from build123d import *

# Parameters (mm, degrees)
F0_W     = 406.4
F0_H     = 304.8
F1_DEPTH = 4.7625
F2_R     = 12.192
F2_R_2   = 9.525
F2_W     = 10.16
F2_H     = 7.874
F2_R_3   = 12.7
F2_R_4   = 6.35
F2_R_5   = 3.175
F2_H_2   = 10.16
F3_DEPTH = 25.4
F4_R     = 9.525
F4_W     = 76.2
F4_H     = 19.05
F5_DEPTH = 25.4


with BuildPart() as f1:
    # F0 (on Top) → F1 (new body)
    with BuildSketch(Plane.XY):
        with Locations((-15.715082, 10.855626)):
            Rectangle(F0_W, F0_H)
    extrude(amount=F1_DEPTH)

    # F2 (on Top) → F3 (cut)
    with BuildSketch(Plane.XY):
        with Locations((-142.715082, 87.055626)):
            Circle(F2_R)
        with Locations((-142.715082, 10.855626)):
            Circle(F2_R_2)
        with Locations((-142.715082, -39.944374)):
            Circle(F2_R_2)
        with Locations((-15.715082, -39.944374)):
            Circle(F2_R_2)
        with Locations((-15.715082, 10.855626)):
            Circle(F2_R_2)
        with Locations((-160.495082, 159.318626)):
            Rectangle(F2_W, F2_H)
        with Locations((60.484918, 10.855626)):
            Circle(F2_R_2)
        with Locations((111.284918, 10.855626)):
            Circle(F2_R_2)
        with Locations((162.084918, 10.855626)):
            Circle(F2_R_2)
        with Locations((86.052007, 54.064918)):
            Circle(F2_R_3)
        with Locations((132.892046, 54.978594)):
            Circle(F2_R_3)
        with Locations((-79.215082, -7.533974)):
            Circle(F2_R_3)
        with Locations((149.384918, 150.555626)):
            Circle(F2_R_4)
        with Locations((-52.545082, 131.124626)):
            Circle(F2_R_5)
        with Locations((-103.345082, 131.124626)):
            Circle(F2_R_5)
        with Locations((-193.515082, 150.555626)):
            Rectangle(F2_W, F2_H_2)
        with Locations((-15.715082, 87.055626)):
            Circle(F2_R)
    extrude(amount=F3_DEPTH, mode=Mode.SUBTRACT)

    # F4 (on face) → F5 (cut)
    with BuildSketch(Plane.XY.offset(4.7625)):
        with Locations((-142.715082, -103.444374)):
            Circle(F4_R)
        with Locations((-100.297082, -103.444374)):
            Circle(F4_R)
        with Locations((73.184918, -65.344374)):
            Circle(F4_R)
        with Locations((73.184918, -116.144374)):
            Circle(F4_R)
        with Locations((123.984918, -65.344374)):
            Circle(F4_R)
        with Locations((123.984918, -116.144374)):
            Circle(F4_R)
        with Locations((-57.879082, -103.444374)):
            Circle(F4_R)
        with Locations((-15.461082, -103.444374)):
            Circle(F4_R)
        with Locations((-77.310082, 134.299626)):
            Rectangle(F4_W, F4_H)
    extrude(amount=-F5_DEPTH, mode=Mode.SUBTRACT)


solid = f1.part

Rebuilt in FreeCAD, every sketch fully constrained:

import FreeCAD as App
import Part
import Sketcher

V = App.Vector
Q = App.Units.Quantity


def add_polygon(sketch, points):
    """Adds a closed chain of lines whose ends are joined by coincident constraints."""
    first, n = sketch.GeometryCount, len(points)
    for a, b in zip(points, points[1:] + points[:1]):
        sketch.addGeometry(Part.LineSegment(App.Vector(*a, 0), App.Vector(*b, 0)), False)
    for i in range(n):
        sketch.addConstraint(Sketcher.Constraint("Coincident", first + i, 2, first + (i + 1) % n, 1))

doc = App.newDocument("Part")
body = doc.addObject("PartDesign::Body", "Body")

# Sketch on XY plane
sketch1 = body.newObject("Sketcher::SketchObject", "Sketch")
sketch1.AttachmentSupport = (doc.getObject("XY_Plane"), [""])
sketch1.MapMode = "FlatFace"
add_polygon(sketch1, [(-219, 163), (-219, -142), (187, -142), (187, 163)])  # lines 0-3
sketch1.addConstraint([
    Sketcher.Constraint("Vertical", 0),
    Sketcher.Constraint("Horizontal", 1),
    Sketcher.Constraint("Vertical", 2),
    Sketcher.Constraint("Horizontal", 3),
    Sketcher.Constraint("DistanceX", 1, 1, 1, 2, Q("16 in")),
    Sketcher.Constraint("DistanceY", 0, 2, 0, 1, Q("12 in")),
    Sketcher.Constraint("DistanceX", -1, 1, 1, 2, 187.484918),
    Sketcher.Constraint("DistanceY", 0, 2, -1, 1, 141.544374),
])
pad1 = body.newObject("PartDesign::Pad", "Pad")
pad1.Profile = sketch1
pad1.Length = Q("0.1875 in")

# Sketch on XY plane
sketch2 = body.newObject("Sketcher::SketchObject", "Sketch001")
sketch2.AttachmentSupport = (doc.getObject("XY_Plane"), [""])
sketch2.MapMode = "FlatFace"
sketch2.addGeometry(Part.Circle(V(-142.7, 87.1, 0), V(0, 0, 1), 12.2), False)  # 0
sketch2.addGeometry(Part.Circle(V(-142.7, 10.9, 0), V(0, 0, 1), 9.5), False)  # 1
sketch2.addGeometry(Part.Circle(V(-142.7, -39.9, 0), V(0, 0, 1), 9.5), False)  # 2
sketch2.addGeometry(Part.Circle(V(-15.7, -39.9, 0), V(0, 0, 1), 9.5), False)  # 3
sketch2.addGeometry(Part.Circle(V(-15.7, 10.9, 0), V(0, 0, 1), 9.5), False)  # 4
add_polygon(sketch2, [(-165.6, 163.3), (-165.6, 155.4), (-155.4, 155.4), (-155.4, 163.3)])  # lines 5-8
sketch2.addGeometry(Part.Circle(V(60.5, 10.9, 0), V(0, 0, 1), 9.5), False)  # 9
sketch2.addGeometry(Part.Circle(V(111.3, 10.9, 0), V(0, 0, 1), 9.5), False)  # 10
sketch2.addGeometry(Part.Circle(V(162.1, 10.9, 0), V(0, 0, 1), 9.5), False)  # 11
sketch2.addGeometry(Part.Circle(V(86.1, 54.1, 0), V(0, 0, 1), 12.7), False)  # 12
sketch2.addGeometry(Part.Circle(V(132.9, 55, 0), V(0, 0, 1), 12.7), False)  # 13
sketch2.addGeometry(Part.Circle(V(-79.2, -7.5, 0), V(0, 0, 1), 12.7), False)  # 14
sketch2.addGeometry(Part.Circle(V(149.4, 150.6, 0), V(0, 0, 1), 6.3), False)  # 15
sketch2.addGeometry(Part.Circle(V(-52.5, 131.1, 0), V(0, 0, 1), 3.2), False)  # 16
sketch2.addGeometry(Part.Circle(V(-103.3, 131.1, 0), V(0, 0, 1), 3.2), False)  # 17
add_polygon(sketch2, [(-198.6, 155.6), (-198.6, 145.5), (-188.4, 145.5), (-188.4, 155.6)])  # lines 18-21
sketch2.addGeometry(Part.Circle(V(-15.7, 87.1, 0), V(0, 0, 1), 12.2), False)  # 22
sketch2.addConstraint([
    Sketcher.Constraint("Vertical", 5),
    Sketcher.Constraint("Horizontal", 6),
    Sketcher.Constraint("Vertical", 7),
    Sketcher.Constraint("Horizontal", 8),
    Sketcher.Constraint("Vertical", 18),
    Sketcher.Constraint("Horizontal", 19),
    Sketcher.Constraint("Vertical", 20),
    Sketcher.Constraint("Horizontal", 21),
    Sketcher.Constraint("Equal", 1, 2),
    Sketcher.Constraint("Equal", 2, 3),
    Sketcher.Constraint("Equal", 3, 4),
    Sketcher.Constraint("Equal", 4, 9),
    Sketcher.Constraint("Equal", 9, 10),
    Sketcher.Constraint("Equal", 10, 11),
    Sketcher.Constraint("Equal", 12, 13),
    Sketcher.Constraint("Equal", 13, 14),
    Sketcher.Constraint("Equal", 16, 17),
    Sketcher.Constraint("Equal", 0, 22),
    Sketcher.Constraint("Horizontal", 2, 3, 3, 3),
    Sketcher.Constraint("Horizontal", 1, 3, 4, 3),
    Sketcher.Constraint("Horizontal", 4, 3, 9, 3),
    Sketcher.Constraint("Horizontal", 9, 3, 10, 3),
    Sketcher.Constraint("Horizontal", 10, 3, 11, 3),
    Sketcher.Constraint("Horizontal", 16, 3, 17, 3),
    Sketcher.Constraint("Horizontal", 0, 3, 22, 3),
    Sketcher.Constraint("Vertical", 0, 3, 1, 3),
    Sketcher.Constraint("Vertical", 1, 3, 2, 3),
    Sketcher.Constraint("Vertical", 3, 3, 4, 3),
    Sketcher.Constraint("Vertical", 4, 3, 22, 3),
    Sketcher.Constraint("Equal", 8, 19),
    Sketcher.Constraint("Equal", 21, 18),
    Sketcher.Constraint("Diameter", 12, Q("1 in")),
    Sketcher.Constraint("Diameter", 15, Q("0.5 in")),
    Sketcher.Constraint("Diameter", 0, Q("0.96 in")),
    Sketcher.Constraint("Diameter", 1, Q("0.75 in")),
    Sketcher.Constraint("Diameter", 16, Q("0.25 in")),
    Sketcher.Constraint("DistanceX", 6, 1, 6, 2, Q("0.4 in")),
    Sketcher.Constraint("DistanceY", 1, 3, 0, 3, Q("3 in")),
    Sketcher.Constraint("DistanceY", 2, 3, 1, 3, Q("2 in")),
    Sketcher.Constraint("DistanceX", 2, 3, 3, 3, Q("5 in")),
    Sketcher.Constraint("DistanceX", 4, 3, 9, 3, Q("3 in")),
    Sketcher.Constraint("DistanceX", 9, 3, 10, 3, Q("2 in")),
    Sketcher.Constraint("DistanceX", 10, 3, 11, 3, Q("2 in")),
    Sketcher.Constraint("DistanceX", 17, 3, 16, 3, Q("2 in")),
    Sketcher.Constraint("DistanceY", 0, 3, 7, 2, Q("3 in")),
    Sketcher.Constraint("DistanceY", 5, 2, 5, 1, Q("0.31 in")),
    Sketcher.Constraint("DistanceX", 1, 3, 14, 3, Q("2.5 in")),
    Sketcher.Constraint("DistanceX", 15, 3, 11, 3, Q("0.5 in")),
    Sketcher.Constraint("DistanceY", 11, 3, 15, 3, Q("5.5 in")),
    Sketcher.Constraint("DistanceX", 5, 2, 0, 3, Q("0.9 in")),
    Sketcher.Constraint("DistanceX", 18, 2, 5, 2, Q("1.3 in")),
    Sketcher.Constraint("DistanceY", 18, 2, 8, 2, Q("0.7 in")),
    Sketcher.Constraint("DistanceX", 0, 3, 16, 3, Q("3.55 in")),
    Sketcher.Constraint("DistanceY", 14, 3, 1, 3, Q("0.724 in")),
    Sketcher.Constraint("DistanceY", 0, 3, 16, 3, Q("1.735 in")),
    Sketcher.Constraint("DistanceX", 0, 3, -1, 1, 142.715082),
    Sketcher.Constraint("DistanceX", 12, 3, 10, 3, 25.232911),
    Sketcher.Constraint("DistanceY", 10, 3, 12, 3, 43.209292),
    Sketcher.Constraint("DistanceX", 12, 3, 13, 3, 46.840039),
    Sketcher.Constraint("DistanceY", 13, 3, 15, 3, 95.577032),
    Sketcher.Constraint("DistanceY", -1, 1, 0, 3, 87.055626),
])
pocket1 = body.newObject("PartDesign::Pocket", "Pocket")
pocket1.Profile = sketch2
pocket1.Length = Q("1 in")
pocket1.Reversed = True

# Sketch on XY plane
sketch3 = body.newObject("Sketcher::SketchObject", "Sketch002")
sketch3.AttachmentSupport = (doc.getObject("XY_Plane"), [""])
sketch3.MapMode = "FlatFace"
sketch3.AttachmentOffset = App.Placement(V(0, 0, 0.1875 * 25.4), App.Rotation())
sketch3.addGeometry(Part.Circle(V(-143, -103, 0), V(0, 0, 1), 10), False)  # 0
sketch3.addGeometry(Part.Circle(V(-100, -103, 0), V(0, 0, 1), 10), False)  # 1
sketch3.addGeometry(Part.Circle(V(73, -65, 0), V(0, 0, 1), 10), False)  # 2
sketch3.addGeometry(Part.Circle(V(73, -116, 0), V(0, 0, 1), 10), False)  # 3
sketch3.addGeometry(Part.Circle(V(124, -65, 0), V(0, 0, 1), 10), False)  # 4
sketch3.addGeometry(Part.Circle(V(124, -116, 0), V(0, 0, 1), 10), False)  # 5
sketch3.addGeometry(Part.Circle(V(-58, -103, 0), V(0, 0, 1), 10), False)  # 6
sketch3.addGeometry(Part.Circle(V(-15, -103, 0), V(0, 0, 1), 10), False)  # 7
add_polygon(sketch3, [(-115, 144), (-115, 125), (-39, 125), (-39, 144)])  # lines 8-11
sketch3.addConstraint([
    Sketcher.Constraint("Vertical", 8),
    Sketcher.Constraint("Horizontal", 9),
    Sketcher.Constraint("Vertical", 10),
    Sketcher.Constraint("Horizontal", 11),
    Sketcher.Constraint("Equal", 0, 1),
    Sketcher.Constraint("Equal", 1, 2),
    Sketcher.Constraint("Equal", 2, 3),
    Sketcher.Constraint("Equal", 3, 4),
    Sketcher.Constraint("Equal", 4, 5),
    Sketcher.Constraint("Equal", 5, 6),
    Sketcher.Constraint("Equal", 6, 7),
    Sketcher.Constraint("Horizontal", 0, 3, 1, 3),
    Sketcher.Constraint("Horizontal", 2, 3, 4, 3),
    Sketcher.Constraint("Horizontal", 3, 3, 5, 3),
    Sketcher.Constraint("Horizontal", 1, 3, 6, 3),
    Sketcher.Constraint("Horizontal", 6, 3, 7, 3),
    Sketcher.Constraint("Vertical", 2, 3, 3, 3),
    Sketcher.Constraint("Vertical", 4, 3, 5, 3),
    Sketcher.Constraint("Diameter", 0, Q("0.75 in")),
    Sketcher.Constraint("DistanceX", 9, 1, 9, 2, Q("3 in")),
    Sketcher.Constraint("DistanceY", 3, 3, 2, 3, Q("2 in")),
    Sketcher.Constraint("DistanceX", 2, 3, 4, 3, Q("2 in")),
    Sketcher.Constraint("DistanceY", 8, 2, 8, 1, Q("0.75 in")),
    Sketcher.Constraint("DistanceY", 1, 3, 2, 3, Q("1.5 in")),
    Sketcher.Constraint("DistanceX", 0, 3, 2, 3, Q("8.5 in")),
    Sketcher.Constraint("DistanceX", 0, 3, 1, 3, Q("1.67 in")),
    Sketcher.Constraint("DistanceX", 1, 3, 6, 3, Q("1.67 in")),
    Sketcher.Constraint("DistanceX", 6, 3, 7, 3, Q("1.67 in")),
    Sketcher.Constraint("DistanceX", 8, 2, 1, 3, Q("0.595 in")),
    Sketcher.Constraint("DistanceY", 1, 3, 8, 2, Q("8.985 in")),
    Sketcher.Constraint("DistanceX", 0, 3, -1, 1, 142.715082),
    Sketcher.Constraint("DistanceY", 0, 3, -1, 1, 103.444374),
])
pocket2 = body.newObject("PartDesign::Pocket", "Pocket001")
pocket2.Profile = sketch3
pocket2.Length = Q("1 in")

doc.recompute()
